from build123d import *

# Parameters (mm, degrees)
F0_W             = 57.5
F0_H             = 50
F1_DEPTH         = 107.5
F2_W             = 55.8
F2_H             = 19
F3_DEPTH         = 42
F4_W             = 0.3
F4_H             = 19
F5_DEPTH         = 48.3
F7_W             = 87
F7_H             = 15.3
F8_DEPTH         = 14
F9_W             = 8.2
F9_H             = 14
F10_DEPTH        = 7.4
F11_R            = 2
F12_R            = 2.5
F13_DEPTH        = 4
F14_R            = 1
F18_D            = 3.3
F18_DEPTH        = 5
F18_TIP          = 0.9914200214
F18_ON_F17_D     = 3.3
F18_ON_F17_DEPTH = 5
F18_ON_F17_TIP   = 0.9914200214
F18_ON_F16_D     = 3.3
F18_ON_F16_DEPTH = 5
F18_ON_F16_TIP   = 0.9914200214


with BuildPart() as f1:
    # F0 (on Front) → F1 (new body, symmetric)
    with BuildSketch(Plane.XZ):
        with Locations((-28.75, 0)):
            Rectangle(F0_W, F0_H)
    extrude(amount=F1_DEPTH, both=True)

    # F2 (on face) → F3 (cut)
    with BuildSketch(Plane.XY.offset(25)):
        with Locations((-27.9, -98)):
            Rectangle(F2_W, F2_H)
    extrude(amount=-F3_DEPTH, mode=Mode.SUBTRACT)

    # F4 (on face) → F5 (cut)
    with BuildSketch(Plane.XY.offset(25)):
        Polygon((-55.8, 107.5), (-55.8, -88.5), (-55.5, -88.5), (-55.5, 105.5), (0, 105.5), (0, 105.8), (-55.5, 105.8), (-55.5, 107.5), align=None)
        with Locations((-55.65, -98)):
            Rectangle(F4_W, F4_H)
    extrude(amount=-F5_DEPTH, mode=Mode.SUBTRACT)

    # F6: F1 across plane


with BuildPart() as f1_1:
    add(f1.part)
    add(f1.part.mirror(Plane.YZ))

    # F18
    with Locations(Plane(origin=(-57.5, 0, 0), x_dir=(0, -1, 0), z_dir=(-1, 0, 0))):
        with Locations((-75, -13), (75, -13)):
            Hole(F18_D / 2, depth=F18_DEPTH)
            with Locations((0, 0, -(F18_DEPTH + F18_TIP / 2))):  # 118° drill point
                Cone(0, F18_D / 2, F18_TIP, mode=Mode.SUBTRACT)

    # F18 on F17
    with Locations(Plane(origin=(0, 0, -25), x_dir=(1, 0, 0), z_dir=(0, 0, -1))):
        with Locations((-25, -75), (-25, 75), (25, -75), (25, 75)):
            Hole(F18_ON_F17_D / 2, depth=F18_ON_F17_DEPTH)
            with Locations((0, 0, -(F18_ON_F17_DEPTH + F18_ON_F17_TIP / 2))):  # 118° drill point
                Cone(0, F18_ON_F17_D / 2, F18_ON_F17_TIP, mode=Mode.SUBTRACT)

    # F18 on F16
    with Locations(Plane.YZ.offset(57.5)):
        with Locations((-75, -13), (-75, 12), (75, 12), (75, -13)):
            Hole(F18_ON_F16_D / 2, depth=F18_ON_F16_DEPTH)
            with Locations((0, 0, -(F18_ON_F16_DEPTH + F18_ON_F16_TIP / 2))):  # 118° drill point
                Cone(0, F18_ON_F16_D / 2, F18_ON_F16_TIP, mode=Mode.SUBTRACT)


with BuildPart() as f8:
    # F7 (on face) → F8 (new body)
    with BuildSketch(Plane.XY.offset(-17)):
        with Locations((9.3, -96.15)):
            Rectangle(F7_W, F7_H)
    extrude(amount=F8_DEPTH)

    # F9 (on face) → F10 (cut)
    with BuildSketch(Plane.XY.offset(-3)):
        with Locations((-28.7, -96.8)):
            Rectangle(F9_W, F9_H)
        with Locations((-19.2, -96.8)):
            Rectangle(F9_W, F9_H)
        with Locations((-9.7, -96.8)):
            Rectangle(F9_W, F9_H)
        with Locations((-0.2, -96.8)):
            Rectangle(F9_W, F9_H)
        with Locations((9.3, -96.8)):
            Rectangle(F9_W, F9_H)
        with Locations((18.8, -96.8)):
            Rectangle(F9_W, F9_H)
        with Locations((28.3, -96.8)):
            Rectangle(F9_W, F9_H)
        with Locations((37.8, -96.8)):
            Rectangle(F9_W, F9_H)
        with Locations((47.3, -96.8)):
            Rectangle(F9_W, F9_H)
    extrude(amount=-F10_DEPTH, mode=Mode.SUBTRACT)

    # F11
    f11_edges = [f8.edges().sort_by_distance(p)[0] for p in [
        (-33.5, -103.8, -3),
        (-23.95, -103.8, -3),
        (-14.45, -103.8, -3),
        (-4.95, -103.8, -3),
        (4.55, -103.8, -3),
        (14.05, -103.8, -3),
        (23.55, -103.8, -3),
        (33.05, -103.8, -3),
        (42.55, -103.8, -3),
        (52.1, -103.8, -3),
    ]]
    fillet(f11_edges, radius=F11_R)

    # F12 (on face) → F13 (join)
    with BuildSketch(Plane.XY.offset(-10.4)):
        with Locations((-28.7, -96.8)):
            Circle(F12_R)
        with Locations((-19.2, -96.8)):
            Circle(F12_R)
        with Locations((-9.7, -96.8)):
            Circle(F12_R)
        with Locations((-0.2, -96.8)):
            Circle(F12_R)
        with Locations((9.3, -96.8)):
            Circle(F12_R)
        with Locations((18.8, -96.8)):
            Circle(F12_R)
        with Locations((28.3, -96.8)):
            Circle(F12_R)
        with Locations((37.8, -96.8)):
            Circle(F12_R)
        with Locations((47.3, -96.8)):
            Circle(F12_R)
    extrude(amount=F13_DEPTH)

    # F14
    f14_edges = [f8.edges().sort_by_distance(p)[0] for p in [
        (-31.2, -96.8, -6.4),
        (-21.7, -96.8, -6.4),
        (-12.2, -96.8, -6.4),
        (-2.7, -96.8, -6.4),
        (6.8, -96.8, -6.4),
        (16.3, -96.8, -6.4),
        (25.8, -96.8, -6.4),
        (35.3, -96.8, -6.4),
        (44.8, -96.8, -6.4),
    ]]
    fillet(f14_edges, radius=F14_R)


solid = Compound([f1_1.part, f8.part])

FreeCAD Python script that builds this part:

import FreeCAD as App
import Part
import Sketcher

V = App.Vector


def edges_at(feature, points):
    """Names of the edges that pass closest to the given points."""
    edges = feature.Shape.Edges
    near = lambda p: min(range(len(edges)), key=lambda i: edges[i].distToShape(Part.Vertex(*p))[0])
    return sorted({f"Edge{near(p) + 1}" for p in points})


def add_polygon(sketch, points):
    """Adds a closed chain of lines whose ends are joined by coincident constraints."""
    first, n = sketch.GeometryCount, len(points)
    for a, b in zip(points, points[1:] + points[:1]):
        sketch.addGeometry(Part.LineSegment(App.Vector(*a, 0), App.Vector(*b, 0)), False)
    for i in range(n):
        sketch.addConstraint(Sketcher.Constraint("Coincident", first + i, 2, first + (i + 1) % n, 1))

doc = App.newDocument("Part")
params = doc.addObject("Spreadsheet::Sheet", "Params")
for row, (alias, value) in enumerate([
    ("sketch1_height", "50 mm"),
    ("sketch1_width", "57.5 mm"),
    ("pad1_length", "215 mm"),
    ("sketch2_height", "19 mm"),
    ("sketch2_width", "55.8 mm"),
    ("pocket1_length", "42 mm"),
    ("sketch3_height", "215 mm"),
    ("sketch3_height2", "213 mm"),
    ("sketch3_width", "0.3 mm"),
    ("sketch3_width2", "55.5 mm"),
    ("pocket2_length", "48.3 mm"),
    ("sketch4_diameter", "3.3 mm"),
    ("hole_diameter", "3.3 mm"),
    ("hole_depth", "5 mm"),
    ("sketch5_diameter", "3.3 mm"),
    ("hole2_diameter", "3.3 mm"),
    ("hole2_depth", "5 mm"),
    ("sketch6_diameter", "3.3 mm"),
    ("hole3_diameter", "3.3 mm"),
    ("hole3_depth", "5 mm"),
    ("sketch7_width", "87 mm"),
    ("sketch7_height", "15.3 mm"),
    ("pad2_length", "14 mm"),
    ("sketch8_height", "14 mm"),
    ("sketch8_width", "8.2 mm"),
    ("pocket3_length", "7.4 mm"),
    ("fillet_radius", "2 mm"),
    ("sketch9_diameter", "5 mm"),
    ("pad3_length", "4 mm"),
    ("fillet2_radius", "1 mm"),
], start=1):
    params.set(f"A{row}", alias)
    params.set(f"B{row}", "=" + value)
    params.setAlias(f"B{row}", alias)

body = doc.addObject("PartDesign::Body", "Body")

# Sketch on XZ plane
sketch1 = doc.addObject("Sketcher::SketchObject", "Sketch")
body.addObject(sketch1)
sketch1.AttachmentSupport = (doc.XZ_Plane, [""])
sketch1.MapMode = "FlatFace"
add_polygon(sketch1, [(-57.5, 25), (-57.5, -25), (0, -25), (0, 25)])  # lines 0-3
sketch1.addConstraint([
    Sketcher.Constraint("Vertical", 0),
    Sketcher.Constraint("Horizontal", 1),
    Sketcher.Constraint("Vertical", 2),
    Sketcher.Constraint("Horizontal", 3),
    Sketcher.Constraint("Symmetric", 1, 2, 2, 2, -1, 1),
    Sketcher.Constraint("DistanceY", 0, 2, 0, 1, 50.0),
    Sketcher.Constraint("DistanceX", 1, 1, 1, 2, 57.5),
])
sketch1.setExpression("Constraints[9]", "Params.sketch1_height")
sketch1.setExpression("Constraints[10]", "Params.sketch1_width")
pad1 = doc.addObject("PartDesign::Pad", "Pad")
body.addObject(pad1)
pad1.Profile = sketch1
pad1.setExpression("Length", "Params.pad1_length")
pad1.Midplane = True

# Sketch on XY plane
sketch2 = doc.addObject("Sketcher::SketchObject", "Sketch001")
body.addObject(sketch2)
sketch2.AttachmentSupport = (doc.XY_Plane, [""])
sketch2.MapMode = "FlatFace"
sketch2.AttachmentOffset = App.Placement(V(0, 0, 25), App.Rotation())
add_polygon(sketch2, [(-55.8, -88.5), (-55.8, -107.5), (0, -107.5), (0, -88.5)])  # lines 0-3
sketch2.addConstraint([
    Sketcher.Constraint("Vertical", 0),
    Sketcher.Constraint("Horizontal", 1),
    Sketcher.Constraint("Vertical", 2),
    Sketcher.Constraint("Horizontal", 3),
    Sketcher.Constraint("PointOnObject", 1, 2, -2),
    Sketcher.Constraint("DistanceY", 0, 2, 0, 1, 19.0),
    Sketcher.Constraint("DistanceX", 1, 1, 1, 2, 55.8),
    Sketcher.Constraint("DistanceY", 0, 2, -1, 1, 107.5),
])
sketch2.setExpression("Constraints[9]", "Params.sketch2_height")
sketch2.setExpression("Constraints[10]", "Params.sketch2_width")
pocket1 = doc.addObject("PartDesign::Pocket", "Pocket")
body.addObject(pocket1)
pocket1.Profile = sketch2
pocket1.setExpression("Length", "Params.pocket1_length")

# Sketch on XY plane
sketch3 = doc.addObject("Sketcher::SketchObject", "Sketch002")
body.addObject(sketch3)
sketch3.AttachmentSupport = (doc.XY_Plane, [""])
sketch3.MapMode = "FlatFace"
sketch3.AttachmentOffset = App.Placement(V(0, 0, 25), App.Rotation())
add_polygon(sketch3, [(-55.8, 107.5), (-55.8, -107.5), (-55.5, -107.5), (-55.5, 105.5), (0, 105.5), (0, 105.8), (-55.5, 105.8), (-55.5, 107.5)])  # lines 0-7
sketch3.addConstraint([
    Sketcher.Constraint("Vertical", 0),
    Sketcher.Constraint("Horizontal", 1),
    Sketcher.Constraint("Vertical", 2),
    Sketcher.Constraint("Horizontal", 3),
    Sketcher.Constraint("Vertical", 4),
    Sketcher.Constraint("Horizontal", 5),
    Sketcher.Constraint("Vertical", 6),
    Sketcher.Constraint("Horizontal", 7),
    Sketcher.Constraint("Symmetric", 1, 2, 6, 2, -1),
    Sketcher.Constraint("PointOnObject", 3, 2, -2),
    Sketcher.Constraint("Equal", 7, 4),
    Sketcher.Constraint("DistanceY", 0, 2, 0, 1, 215.0),
    Sketcher.Constraint("DistanceY", 2, 1, 2, 2, 213.0),
    Sketcher.Constraint("DistanceX", 1, 1, 1, 2, 0.3),
    Sketcher.Constraint("DistanceX", 3, 1, 3, 2, 55.5),
])
sketch3.setExpression("Constraints[19]", "Params.sketch3_height")
sketch3.setExpression("Constraints[20]", "Params.sketch3_height2")
sketch3.setExpression("Constraints[21]", "Params.sketch3_width")
sketch3.setExpression("Constraints[22]", "Params.sketch3_width2")
pocket2 = doc.addObject("PartDesign::Pocket", "Pocket001")
body.addObject(pocket2)
pocket2.Profile = sketch3
pocket2.setExpression("Length", "Params.pocket2_length")
body2 = doc.addObject("PartDesign::Body", "Body001")
doc.recompute()

body2.BaseFeature = body
doc.recompute()

mirroring = doc.addObject("Part::Mirroring", "Mirroring")
mirroring.Source = body
mirroring.Base = V(0, 0, 0)
mirroring.Normal = V(1, 0, 0)
body3 = doc.addObject("PartDesign::Body", "Body002")
body3.BaseFeature = mirroring
boolean = doc.addObject("PartDesign::Boolean", "Boolean")
body2.addObject(boolean)
boolean.Type = "Fuse"
boolean.addObjects([body3])
doc.recompute()

# Sketch on YZ plane
sketch4 = doc.addObject("Sketcher::SketchObject", "Sketch003")
body2.addObject(sketch4)
sketch4.AttachmentSupport = (doc.getObject("YZ_Plane001"), [""])
sketch4.MapMode = "FlatFace"
sketch4.AttachmentOffset = App.Placement(V(0, 0, -57.5), App.Rotation())
sketch4.addGeometry([
    Part.Circle(V(75, -13, 0), V(0, 0, 1), 1.65),
    Part.Circle(V(-75, -13, 0), V(0, 0, 1), 1.65),
], False)
sketch4.addConstraint([
    Sketcher.Constraint("Equal", 0, 1),
    Sketcher.Constraint("Symmetric", 0, 3, 1, 3, -2),
    Sketcher.Constraint("Diameter", 0, 3.3),
    Sketcher.Constraint("DistanceX", -1, 1, 0, 3, 75.0),
    Sketcher.Constraint("DistanceY", 0, 3, -1, 1, 13.0),
])
sketch4.setExpression("Constraints[2]", "Params.sketch4_diameter")
doc.recompute()
hole = doc.addObject("PartDesign::Hole", "Hole")
body2.addObject(hole)
hole.Profile = sketch4
hole.ThreadType = "None"
hole.setExpression("Diameter", "Params.hole_diameter")
hole.DepthType = "Dimension"
hole.setExpression("Depth", "Params.hole_depth")
hole.DrillPoint = "Angled"
hole.DrillPointAngle = 118
hole.Reversed = True

# Sketch on XY plane
sketch5 = doc.addObject("Sketcher::SketchObject", "Sketch004")
body2.addObject(sketch5)
sketch5.AttachmentSupport = (doc.getObject("XY_Plane001"), [""])
sketch5.MapMode = "FlatFace"
sketch5.AttachmentOffset = App.Placement(V(0, 0, -25), App.Rotation())
sketch5.addGeometry([
    Part.Circle(V(-25, 75, 0), V(0, 0, 1), 1.65),
    Part.Circle(V(-25, -75, 0), V(0, 0, 1), 1.65),
    Part.Circle(V(25, 75, 0), V(0, 0, 1), 1.65),
    Part.Circle(V(25, -75, 0), V(0, 0, 1), 1.65),
], False)
sketch5.addConstraint([
    Sketcher.Constraint("Equal", 0, 1),
    Sketcher.Constraint("Equal", 1, 2),
    Sketcher.Constraint("Equal", 2, 3),
    Sketcher.Constraint("Symmetric", 1, 3, 2, 3, -1, 1),
    Sketcher.Constraint("Symmetric", 0, 3, 3, 3, -1, 1),
    Sketcher.Constraint("Symmetric", 0, 3, 2, 3, -2),
    Sketcher.Constraint("Diameter", 0, 3.3),
    Sketcher.Constraint("DistanceX", 0, 3, -1, 1, 25.0),
    Sketcher.Constraint("DistanceY", -1, 1, 0, 3, 75.0),
])
sketch5.setExpression("Constraints[6]", "Params.sketch5_diameter")
doc.recompute()
hole2 = doc.addObject("PartDesign::Hole", "Hole001")
body2.addObject(hole2)
hole2.Profile = sketch5
hole2.ThreadType = "None"
hole2.setExpression("Diameter", "Params.hole2_diameter")
hole2.DepthType = "Dimension"
hole2.setExpression("Depth", "Params.hole2_depth")
hole2.DrillPoint = "Angled"
hole2.DrillPointAngle = 118
hole2.Reversed = True

# Sketch on YZ plane
sketch6 = doc.addObject("Sketcher::SketchObject", "Sketch005")
body2.addObject(sketch6)
sketch6.AttachmentSupport = (doc.getObject("YZ_Plane001"), [""])
sketch6.MapMode = "FlatFace"
sketch6.AttachmentOffset = App.Placement(V(0, 0, 57.5), App.Rotation())
sketch6.addGeometry([
    Part.Circle(V(-75, -13, 0), V(0, 0, 1), 1.65),
    Part.Circle(V(-75, 12, 0), V(0, 0, 1), 1.65),
    Part.Circle(V(75, 12, 0), V(0, 0, 1), 1.65),
    Part.Circle(V(75, -13, 0), V(0, 0, 1), 1.65),
], False)
sketch6.addConstraint([
    Sketcher.Constraint("Equal", 0, 1),
    Sketcher.Constraint("Equal", 1, 2),
    Sketcher.Constraint("Equal", 2, 3),
    Sketcher.Constraint("Symmetric", 1, 3, 2, 3, -2),
    Sketcher.Constraint("Symmetric", 0, 3, 3, 3, -2),
    Sketcher.Constraint("Vertical", 0, 3, 1, 3),
    Sketcher.Constraint("Diameter", 0, 3.3),
    Sketcher.Constraint("DistanceX", 0, 3, -1, 1, 75.0),
    Sketcher.Constraint("DistanceY", 0, 3, -1, 1, 13.0),
    Sketcher.Constraint("DistanceY", -1, 1, 1, 3, 12.0),
])
sketch6.setExpression("Constraints[6]", "Params.sketch6_diameter")
doc.recompute()
hole3 = doc.addObject("PartDesign::Hole", "Hole002")
body2.addObject(hole3)
hole3.Profile = sketch6
hole3.ThreadType = "None"
hole3.setExpression("Diameter", "Params.hole3_diameter")
hole3.DepthType = "Dimension"
hole3.setExpression("Depth", "Params.hole3_depth")
hole3.DrillPoint = "Angled"
hole3.DrillPointAngle = 118
body4 = doc.addObject("PartDesign::Body", "Body003")

# Sketch on XY plane
sketch7 = doc.addObject("Sketcher::SketchObject", "Sketch006")
body4.addObject(sketch7)
sketch7.AttachmentSupport = (doc.getObject("XY_Plane003"), [""])
sketch7.MapMode = "FlatFace"
sketch7.AttachmentOffset = App.Placement(V(0, 0, -17), App.Rotation())
add_polygon(sketch7, [(-34.2, -88.5), (-34.2, -103.8), (52.8, -103.8), (52.8, -88.5)])  # lines 0-3
sketch7.addConstraint([
    Sketcher.Constraint("Vertical", 0),
    Sketcher.Constraint("Horizontal", 1),
    Sketcher.Constraint("Vertical", 2),
    Sketcher.Constraint("Horizontal", 3),
    Sketcher.Constraint("DistanceX", 1, 1, 1, 2, 87.0),
    Sketcher.Constraint("DistanceY", 0, 2, 0, 1, 15.3),
    Sketcher.Constraint("DistanceX", 0, 2, -1, 1, 34.2),
    Sketcher.Constraint("DistanceY", 0, 2, -1, 1, 103.8),
])
sketch7.setExpression("Constraints[8]", "Params.sketch7_width")
sketch7.setExpression("Constraints[9]", "Params.sketch7_height")
pad2 = doc.addObject("PartDesign::Pad", "Pad001")
body4.addObject(pad2)
pad2.Profile = sketch7
pad2.setExpression("Length", "Params.pad2_length")

# Sketch on XY plane
sketch8 = doc.addObject("Sketcher::SketchObject", "Sketch007")
body4.addObject(sketch8)
sketch8.AttachmentSupport = (doc.getObject("XY_Plane003"), [""])
sketch8.MapMode = "FlatFace"
sketch8.AttachmentOffset = App.Placement(V(0, 0, -3), App.Rotation())
add_polygon(sketch8, [(-32.8, -89.8), (-32.8, -103.8), (-24.6, -103.8), (-24.6, -89.8)])  # lines 0-3
add_polygon(sketch8, [(-23.3, -89.8), (-23.3, -103.8), (-15.1, -103.8), (-15.1, -89.8)])  # lines 4-7
add_polygon(sketch8, [(-13.8, -89.8), (-13.8, -103.8), (-5.6, -103.8), (-5.6, -89.8)])  # lines 8-11
add_polygon(sketch8, [(-4.3, -89.8), (-4.3, -103.8), (3.9, -103.8), (3.9, -89.8)])  # lines 12-15
add_polygon(sketch8, [(5.2, -89.8), (5.2, -103.8), (13.4, -103.8), (13.4, -89.8)])  # lines 16-19
add_polygon(sketch8, [(14.7, -89.8), (14.7, -103.8), (22.9, -103.8), (22.9, -89.8)])  # lines 20-23
add_polygon(sketch8, [(24.2, -89.8), (24.2, -103.8), (32.4, -103.8), (32.4, -89.8)])  # lines 24-27
add_polygon(sketch8, [(33.7, -89.8), (33.7, -103.8), (41.9, -103.8), (41.9, -89.8)])  # lines 28-31
add_polygon(sketch8, [(43.2, -89.8), (43.2, -103.8), (51.4, -103.8), (51.4, -89.8)])  # lines 32-35
sketch8.addConstraint([
    Sketcher.Constraint("Vertical", 0),
    Sketcher.Constraint("Horizontal", 1),
    Sketcher.Constraint("Vertical", 2),
    Sketcher.Constraint("Horizontal", 3),
    Sketcher.Constraint("Vertical", 4),
    Sketcher.Constraint("Horizontal", 5),
    Sketcher.Constraint("Vertical", 6),
    Sketcher.Constraint("Horizontal", 7),
    Sketcher.Constraint("Vertical", 8),
    Sketcher.Constraint("Horizontal", 9),
    Sketcher.Constraint("Vertical", 10),
    Sketcher.Constraint("Horizontal", 11),
    Sketcher.Constraint("Vertical", 12),
    Sketcher.Constraint("Horizontal", 13),
    Sketcher.Constraint("Vertical", 14),
    Sketcher.Constraint("Horizontal", 15),
    Sketcher.Constraint("Vertical", 16),
    Sketcher.Constraint("Horizontal", 17),
    Sketcher.Constraint("Vertical", 18),
    Sketcher.Constraint("Horizontal", 19),
    Sketcher.Constraint("Vertical", 20),
    Sketcher.Constraint("Horizontal", 21),
    Sketcher.Constraint("Vertical", 22),
    Sketcher.Constraint("Horizontal", 23),
    Sketcher.Constraint("Vertical", 24),
    Sketcher.Constraint("Horizontal", 25),
    Sketcher.Constraint("Vertical", 26),
    Sketcher.Constraint("Horizontal", 27),
    Sketcher.Constraint("Vertical", 28),
    Sketcher.Constraint("Horizontal", 29),
    Sketcher.Constraint("Vertical", 30),
    Sketcher.Constraint("Horizontal", 31),
    Sketcher.Constraint("Vertical", 32),
    Sketcher.Constraint("Horizontal", 33),
    Sketcher.Constraint("Vertical", 34),
    Sketcher.Constraint("Horizontal", 35),
    Sketcher.Constraint("Horizontal", 1, 2, 4, 2),
    Sketcher.Constraint("Horizontal", 3, 2, 6, 2),
    Sketcher.Constraint("Horizontal", 5, 2, 8, 2),
    Sketcher.Constraint("Horizontal", 7, 2, 10, 2),
    Sketcher.Constraint("Horizontal", 9, 2, 12, 2),
    Sketcher.Constraint("Horizontal", 11, 2, 14, 2),
    Sketcher.Constraint("Horizontal", 13, 2, 16, 2),
    Sketcher.Constraint("Horizontal", 15, 2, 18, 2),
    Sketcher.Constraint("Horizontal", 17, 2, 20, 2),
    Sketcher.Constraint("Horizontal", 19, 2, 22, 2),
    Sketcher.Constraint("Horizontal", 21, 2, 24, 2),
    Sketcher.Constraint("Horizontal", 23, 2, 26, 2),
    Sketcher.Constraint("Horizontal", 25, 2, 28, 2),
    Sketcher.Constraint("Horizontal", 27, 2, 30, 2),
    Sketcher.Constraint("Horizontal", 29, 2, 32, 2),
    Sketcher.Constraint("Horizontal", 31, 2, 34, 2),
    Sketcher.Constraint("Equal", 3, 5),
    Sketcher.Constraint("Equal", 7, 9),
    Sketcher.Constraint("Equal", 11, 13),
    Sketcher.Constraint("Equal", 15, 17),
    Sketcher.Constraint("Equal", 19, 21),
    Sketcher.Constraint("Equal", 23, 25),
    Sketcher.Constraint("Equal", 27, 29),
    Sketcher.Constraint("Equal", 31, 33),
    Sketcher.Constraint("DistanceY", 0, 2, 0, 1, 14.0),
    Sketcher.Constraint("DistanceX", 1, 1, 1, 2, 8.2),
    Sketcher.Constraint("DistanceX", 1, 2, 9, 2, 19.0),
    Sketcher.Constraint("DistanceX", 5, 2, 13, 2, 19.0),
    Sketcher.Constraint("DistanceX", 9, 2, 17, 2, 19.0),
    Sketcher.Constraint("DistanceX", 13, 2, 21, 2, 19.0),
    Sketcher.Constraint("DistanceX", 17, 2, 25, 2, 19.0),
    Sketcher.Constraint("DistanceX", 21, 2, 29, 2, 19.0),
    Sketcher.Constraint("DistanceX", 25, 2, 33, 2, 19.0),
    Sketcher.Constraint("DistanceX", 0, 2, -1, 1, 32.8),
    Sketcher.Constraint("DistanceY", 0, 2, -1, 1, 103.8),
    Sketcher.Constraint("DistanceX", 4, 2, -1, 1, 23.3),
])
sketch8.setExpression("Constraints[96]", "Params.sketch8_height")
sketch8.setExpression("Constraints[97]", "Params.sketch8_width")
pocket3 = doc.addObject("PartDesign::Pocket", "Pocket002")
body4.addObject(pocket3)
pocket3.Profile = sketch8
pocket3.setExpression("Length", "Params.pocket3_length")
doc.recompute()

fillet = doc.addObject("PartDesign::Fillet", "Fillet")
body4.addObject(fillet)
fillet.Base = (pocket3, edges_at(pocket3, [
    (-33.5, -103.8, -3),
    (-23.95, -103.8, -3),
    (-14.45, -103.8, -3),
    (-4.95, -103.8, -3),
    (4.55, -103.8, -3),
    (14.05, -103.8, -3),
    (23.55, -103.8, -3),
    (33.05, -103.8, -3),
    (42.55, -103.8, -3),
    (52.1, -103.8, -3),
]))
fillet.setExpression("Radius", "Params.fillet_radius")

# Sketch on XY plane
sketch9 = doc.addObject("Sketcher::SketchObject", "Sketch008")
body4.addObject(sketch9)
sketch9.AttachmentSupport = (doc.getObject("XY_Plane003"), [""])
sketch9.MapMode = "FlatFace"
sketch9.AttachmentOffset = App.Placement(V(0, 0, -10.4), App.Rotation())
sketch9.addGeometry([
    Part.Circle(V(-28.7, -96.8, 0), V(0, 0, 1), 2.5),  # 0
    Part.Circle(V(-19.2, -96.8, 0), V(0, 0, 1), 2.5),  # 1
    Part.Circle(V(-9.7, -96.8, 0), V(0, 0, 1), 2.5),  # 2
    Part.Circle(V(-0.2, -96.8, 0), V(0, 0, 1), 2.5),  # 3
    Part.Circle(V(9.3, -96.8, 0), V(0, 0, 1), 2.5),  # 4
    Part.Circle(V(18.8, -96.8, 0), V(0, 0, 1), 2.5),  # 5
    Part.Circle(V(28.3, -96.8, 0), V(0, 0, 1), 2.5),  # 6
    Part.Circle(V(37.8, -96.8, 0), V(0, 0, 1), 2.5),  # 7
    Part.Circle(V(47.3, -96.8, 0), V(0, 0, 1), 2.5),  # 8
], False)
sketch9.addConstraint([
    Sketcher.Constraint("Equal", 0, 1),
    Sketcher.Constraint("Equal", 1, 2),
    Sketcher.Constraint("Equal", 2, 3),
    Sketcher.Constraint("Equal", 3, 4),
    Sketcher.Constraint("Equal", 4, 5),
    Sketcher.Constraint("Equal", 5, 6),
    Sketcher.Constraint("Equal", 6, 7),
    Sketcher.Constraint("Equal", 7, 8),
    Sketcher.Constraint("Horizontal", 0, 3, 1, 3),
    Sketcher.Constraint("Horizontal", 1, 3, 2, 3),
    Sketcher.Constraint("Horizontal", 2, 3, 3, 3),
    Sketcher.Constraint("Horizontal", 3, 3, 4, 3),
    Sketcher.Constraint("Horizontal", 4, 3, 5, 3),
    Sketcher.Constraint("Horizontal", 5, 3, 6, 3),
    Sketcher.Constraint("Horizontal", 6, 3, 7, 3),
    Sketcher.Constraint("Horizontal", 7, 3, 8, 3),
    Sketcher.Constraint("Diameter", 0, 5.0),
    Sketcher.Constraint("DistanceX", 0, 3, 2, 3, 19.0),
    Sketcher.Constraint("DistanceX", 1, 3, 3, 3, 19.0),
    Sketcher.Constraint("DistanceX", 2, 3, 4, 3, 19.0),
    Sketcher.Constraint("DistanceX", 3, 3, 5, 3, 19.0),
    Sketcher.Constraint("DistanceX", 4, 3, 6, 3, 19.0),
    Sketcher.Constraint("DistanceX", 5, 3, 7, 3, 19.0),
    Sketcher.Constraint("DistanceX", 6, 3, 8, 3, 19.0),
    Sketcher.Constraint("DistanceX", 0, 3, -1, 1, 28.7),
    Sketcher.Constraint("DistanceY", 0, 3, -1, 1, 96.8),
    Sketcher.Constraint("DistanceX", 1, 3, -1, 1, 19.2),
])
sketch9.setExpression("Constraints[16]", "Params.sketch9_diameter")
pad3 = doc.addObject("PartDesign::Pad", "Pad002")
body4.addObject(pad3)
pad3.Profile = sketch9
pad3.setExpression("Length", "Params.pad3_length")
doc.recompute()

fillet2 = doc.addObject("PartDesign::Fillet", "Fillet001")
body4.addObject(fillet2)
fillet2.Base = (pad3, edges_at(pad3, [
    (-31.2, -96.8, -6.4),
    (-21.7, -96.8, -6.4),
    (-12.2, -96.8, -6.4),
    (-2.7, -96.8, -6.4),
    (6.8, -96.8, -6.4),
    (16.3, -96.8, -6.4),
    (25.8, -96.8, -6.4),
    (35.3, -96.8, -6.4),
    (44.8, -96.8, -6.4),
]))
fillet2.setExpression("Radius", "Params.fillet2_radius")
mirroring.Visibility = False

doc.recompute()
